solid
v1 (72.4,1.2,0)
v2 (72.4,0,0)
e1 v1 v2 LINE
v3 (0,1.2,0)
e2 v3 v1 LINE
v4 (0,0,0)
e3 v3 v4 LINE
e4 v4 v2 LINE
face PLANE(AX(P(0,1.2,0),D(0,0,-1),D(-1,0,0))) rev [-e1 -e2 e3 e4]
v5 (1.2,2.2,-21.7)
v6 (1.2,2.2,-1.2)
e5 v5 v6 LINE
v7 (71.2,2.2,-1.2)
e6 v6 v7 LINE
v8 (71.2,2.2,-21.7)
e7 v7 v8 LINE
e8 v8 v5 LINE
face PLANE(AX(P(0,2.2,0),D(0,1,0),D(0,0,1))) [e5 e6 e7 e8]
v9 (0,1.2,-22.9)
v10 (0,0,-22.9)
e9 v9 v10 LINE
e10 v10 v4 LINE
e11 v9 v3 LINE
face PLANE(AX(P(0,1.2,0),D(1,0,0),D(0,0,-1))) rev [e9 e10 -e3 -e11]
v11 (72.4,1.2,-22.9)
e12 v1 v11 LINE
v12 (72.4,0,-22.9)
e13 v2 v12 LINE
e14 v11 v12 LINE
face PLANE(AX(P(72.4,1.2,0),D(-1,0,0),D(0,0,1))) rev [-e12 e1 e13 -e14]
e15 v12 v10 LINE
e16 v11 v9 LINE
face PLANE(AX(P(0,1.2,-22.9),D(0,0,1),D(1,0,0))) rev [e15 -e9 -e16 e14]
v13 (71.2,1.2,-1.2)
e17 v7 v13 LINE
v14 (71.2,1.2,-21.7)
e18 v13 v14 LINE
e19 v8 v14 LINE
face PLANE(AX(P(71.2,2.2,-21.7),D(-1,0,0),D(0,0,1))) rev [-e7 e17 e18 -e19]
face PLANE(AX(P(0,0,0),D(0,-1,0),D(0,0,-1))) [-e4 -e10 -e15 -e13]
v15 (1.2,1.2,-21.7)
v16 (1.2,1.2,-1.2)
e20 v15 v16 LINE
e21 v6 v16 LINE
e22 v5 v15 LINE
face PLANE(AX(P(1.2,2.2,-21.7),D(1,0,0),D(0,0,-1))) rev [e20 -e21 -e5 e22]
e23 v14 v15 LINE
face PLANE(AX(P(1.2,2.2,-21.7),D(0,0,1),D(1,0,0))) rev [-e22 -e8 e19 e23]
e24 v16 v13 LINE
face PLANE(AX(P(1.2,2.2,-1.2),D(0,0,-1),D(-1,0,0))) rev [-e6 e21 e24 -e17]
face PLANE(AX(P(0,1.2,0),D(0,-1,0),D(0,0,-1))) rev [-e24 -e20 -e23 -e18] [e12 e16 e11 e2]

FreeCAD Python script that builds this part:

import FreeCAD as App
import Part
import Sketcher

V = App.Vector


def add_polygon(sketch, points):
    """Adds a closed chain of lines whose ends are joined by coincident constraints."""
    first, n = sketch.GeometryCount, len(points)
    for a, b in zip(points, points[1:] + points[:1]):
        sketch.addGeometry(Part.LineSegment(App.Vector(*a, 0), App.Vector(*b, 0)), False)
    for i in range(n):
        sketch.addConstraint(Sketcher.Constraint("Coincident", first + i, 2, first + (i + 1) % n, 1))

doc = App.newDocument("Part")
params = doc.addObject("Spreadsheet::Sheet", "Params")
for row, (alias, value) in enumerate([
    ("sketch1_width", "72.4 mm"),
    ("sketch1_height", "22.9 mm"),
    ("pad1_length", "1.2 mm"),
    ("sketch2_width", "70 mm"),
    ("sketch2_height", "20.5 mm"),
    ("pad2_length", "1 mm"),
], start=1):
    params.set(f"A{row}", alias)
    params.set(f"B{row}", "=" + value)
    params.setAlias(f"B{row}", alias)

body = doc.addObject("PartDesign::Body", "Body")

sketch1 = doc.addObject("Sketcher::SketchObject", "Sketch")
body.addObject(sketch1)
sketch1.AttachmentSupport = (doc.XZ_Plane, [""])
sketch1.MapMode = "FlatFace"
add_polygon(sketch1, [(0, -23), (0, 0), (72, 0), (72, -23)])
sketch1.addConstraint([
    Sketcher.Constraint("Vertical", 0),
    Sketcher.Constraint("Horizontal", 1),
    Sketcher.Constraint("Vertical", 2),
    Sketcher.Constraint("Horizontal", 3),
    Sketcher.Constraint("Coincident", 0, 2, -1, 1),
    Sketcher.Constraint("DistanceX", 1, 1, 1, 2, 72.4),
    Sketcher.Constraint("DistanceY", 0, 1, 0, 2, 22.9),
])
sketch1.setExpression("Constraints[9]", "Params.sketch1_width")
sketch1.setExpression("Constraints[10]", "Params.sketch1_height")
pad1 = doc.addObject("PartDesign::Pad", "Pad")
body.addObject(pad1)
pad1.Profile = sketch1
pad1.setExpression("Length", "Params.pad1_length")
pad1.Reversed = True

sketch2 = doc.addObject("Sketcher::SketchObject", "Sketch001")
body.addObject(sketch2)
sketch2.AttachmentSupport = (doc.XZ_Plane, [""])
sketch2.MapMode = "FlatFace"
sketch2.AttachmentOffset = App.Placement(V(0, 0, -1.2), App.Rotation())
add_polygon(sketch2, [(1, -22), (1, -1), (71, -1), (71, -22)])
sketch2.addConstraint([
    Sketcher.Constraint("Vertical", 0),
    Sketcher.Constraint("Horizontal", 1),
    Sketcher.Constraint("Vertical", 2),
    Sketcher.Constraint("Horizontal", 3),
    Sketcher.Constraint("DistanceX", 1, 1, 1, 2, 70.0),
    Sketcher.Constraint("DistanceY", 0, 1, 0, 2, 20.5),
    Sketcher.Constraint("DistanceX", -1, 1, 0, 2, 1.2),
    Sketcher.Constraint("DistanceY", 0, 2, -1, 1, 1.2),
])
sketch2.setExpression("Constraints[8]", "Params.sketch2_width")
sketch2.setExpression("Constraints[9]", "Params.sketch2_height")
pad2 = doc.addObject("PartDesign::Pad", "Pad001")
body.addObject(pad2)
pad2.Profile = sketch2
pad2.setExpression("Length", "Params.pad2_length")
pad2.Reversed = True

doc.recompute()
